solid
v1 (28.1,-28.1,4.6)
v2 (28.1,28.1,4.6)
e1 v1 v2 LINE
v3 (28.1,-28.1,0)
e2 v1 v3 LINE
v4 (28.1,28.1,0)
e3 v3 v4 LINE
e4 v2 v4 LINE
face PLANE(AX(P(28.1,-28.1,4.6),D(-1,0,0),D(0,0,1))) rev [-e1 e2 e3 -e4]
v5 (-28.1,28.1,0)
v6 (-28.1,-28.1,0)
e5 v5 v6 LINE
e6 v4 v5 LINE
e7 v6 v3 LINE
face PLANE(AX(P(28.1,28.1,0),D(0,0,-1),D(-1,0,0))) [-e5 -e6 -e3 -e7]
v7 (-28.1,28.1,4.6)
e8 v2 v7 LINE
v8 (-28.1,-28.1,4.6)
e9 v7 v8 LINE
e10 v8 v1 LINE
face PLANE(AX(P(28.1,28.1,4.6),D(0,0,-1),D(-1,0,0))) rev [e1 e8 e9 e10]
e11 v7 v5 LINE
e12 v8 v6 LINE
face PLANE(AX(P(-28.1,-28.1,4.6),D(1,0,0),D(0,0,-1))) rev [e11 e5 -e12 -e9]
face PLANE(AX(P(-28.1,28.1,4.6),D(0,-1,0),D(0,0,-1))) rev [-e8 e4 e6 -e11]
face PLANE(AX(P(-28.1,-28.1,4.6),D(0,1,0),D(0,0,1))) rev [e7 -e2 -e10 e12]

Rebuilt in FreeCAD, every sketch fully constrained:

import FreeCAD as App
import Part
import Sketcher
Q = App.Units.Quantity


def add_polygon(sketch, points):
    """Adds a closed chain of lines whose ends are joined by coincident constraints."""
    first, n = sketch.GeometryCount, len(points)
    for a, b in zip(points, points[1:] + points[:1]):
        sketch.addGeometry(Part.LineSegment(App.Vector(*a, 0), App.Vector(*b, 0)), False)
    for i in range(n):
        sketch.addConstraint(Sketcher.Constraint("Coincident", first + i, 2, first + (i + 1) % n, 1))

doc = App.newDocument("Part")
params = doc.addObject("Spreadsheet::Sheet", "Params")
for row, (alias, value) in enumerate([
    ("sketch1_width", "56.2 mm"),
    ("pad1_length", "4.6 mm"),
], start=1):
    params.set(f"A{row}", alias)
    params.set(f"B{row}", "=" + value)
    params.setAlias(f"B{row}", alias)

body = doc.addObject("PartDesign::Body", "Body")

# Sketch on XY plane
sketch1 = doc.addObject("Sketcher::SketchObject", "Sketch")
body.addObject(sketch1)
sketch1.AttachmentSupport = (doc.XY_Plane, [""])
sketch1.MapMode = "FlatFace"
add_polygon(sketch1, [(-28.1, 28.1), (-28.1, -28.1), (28.1, -28.1), (28.1, 28.1)])  # lines 0-3
sketch1.addConstraint([
    Sketcher.Constraint("Vertical", 0),
    Sketcher.Constraint("Horizontal", 1),
    Sketcher.Constraint("Vertical", 2),
    Sketcher.Constraint("Horizontal", 3),
    Sketcher.Constraint("Symmetric", 0, 2, 2, 2, -1, 1),
    Sketcher.Constraint("Equal", 3, 0),
    Sketcher.Constraint("DistanceX", 1, 1, 1, 2, Q("56.2 mm")),
])
sketch1.setExpression("Constraints[10]", "Params.sketch1_width")
pad1 = doc.addObject("PartDesign::Pad", "Pad")
body.addObject(pad1)
pad1.Profile = sketch1
pad1.setExpression("Length", "Params.pad1_length")

doc.recompute()
